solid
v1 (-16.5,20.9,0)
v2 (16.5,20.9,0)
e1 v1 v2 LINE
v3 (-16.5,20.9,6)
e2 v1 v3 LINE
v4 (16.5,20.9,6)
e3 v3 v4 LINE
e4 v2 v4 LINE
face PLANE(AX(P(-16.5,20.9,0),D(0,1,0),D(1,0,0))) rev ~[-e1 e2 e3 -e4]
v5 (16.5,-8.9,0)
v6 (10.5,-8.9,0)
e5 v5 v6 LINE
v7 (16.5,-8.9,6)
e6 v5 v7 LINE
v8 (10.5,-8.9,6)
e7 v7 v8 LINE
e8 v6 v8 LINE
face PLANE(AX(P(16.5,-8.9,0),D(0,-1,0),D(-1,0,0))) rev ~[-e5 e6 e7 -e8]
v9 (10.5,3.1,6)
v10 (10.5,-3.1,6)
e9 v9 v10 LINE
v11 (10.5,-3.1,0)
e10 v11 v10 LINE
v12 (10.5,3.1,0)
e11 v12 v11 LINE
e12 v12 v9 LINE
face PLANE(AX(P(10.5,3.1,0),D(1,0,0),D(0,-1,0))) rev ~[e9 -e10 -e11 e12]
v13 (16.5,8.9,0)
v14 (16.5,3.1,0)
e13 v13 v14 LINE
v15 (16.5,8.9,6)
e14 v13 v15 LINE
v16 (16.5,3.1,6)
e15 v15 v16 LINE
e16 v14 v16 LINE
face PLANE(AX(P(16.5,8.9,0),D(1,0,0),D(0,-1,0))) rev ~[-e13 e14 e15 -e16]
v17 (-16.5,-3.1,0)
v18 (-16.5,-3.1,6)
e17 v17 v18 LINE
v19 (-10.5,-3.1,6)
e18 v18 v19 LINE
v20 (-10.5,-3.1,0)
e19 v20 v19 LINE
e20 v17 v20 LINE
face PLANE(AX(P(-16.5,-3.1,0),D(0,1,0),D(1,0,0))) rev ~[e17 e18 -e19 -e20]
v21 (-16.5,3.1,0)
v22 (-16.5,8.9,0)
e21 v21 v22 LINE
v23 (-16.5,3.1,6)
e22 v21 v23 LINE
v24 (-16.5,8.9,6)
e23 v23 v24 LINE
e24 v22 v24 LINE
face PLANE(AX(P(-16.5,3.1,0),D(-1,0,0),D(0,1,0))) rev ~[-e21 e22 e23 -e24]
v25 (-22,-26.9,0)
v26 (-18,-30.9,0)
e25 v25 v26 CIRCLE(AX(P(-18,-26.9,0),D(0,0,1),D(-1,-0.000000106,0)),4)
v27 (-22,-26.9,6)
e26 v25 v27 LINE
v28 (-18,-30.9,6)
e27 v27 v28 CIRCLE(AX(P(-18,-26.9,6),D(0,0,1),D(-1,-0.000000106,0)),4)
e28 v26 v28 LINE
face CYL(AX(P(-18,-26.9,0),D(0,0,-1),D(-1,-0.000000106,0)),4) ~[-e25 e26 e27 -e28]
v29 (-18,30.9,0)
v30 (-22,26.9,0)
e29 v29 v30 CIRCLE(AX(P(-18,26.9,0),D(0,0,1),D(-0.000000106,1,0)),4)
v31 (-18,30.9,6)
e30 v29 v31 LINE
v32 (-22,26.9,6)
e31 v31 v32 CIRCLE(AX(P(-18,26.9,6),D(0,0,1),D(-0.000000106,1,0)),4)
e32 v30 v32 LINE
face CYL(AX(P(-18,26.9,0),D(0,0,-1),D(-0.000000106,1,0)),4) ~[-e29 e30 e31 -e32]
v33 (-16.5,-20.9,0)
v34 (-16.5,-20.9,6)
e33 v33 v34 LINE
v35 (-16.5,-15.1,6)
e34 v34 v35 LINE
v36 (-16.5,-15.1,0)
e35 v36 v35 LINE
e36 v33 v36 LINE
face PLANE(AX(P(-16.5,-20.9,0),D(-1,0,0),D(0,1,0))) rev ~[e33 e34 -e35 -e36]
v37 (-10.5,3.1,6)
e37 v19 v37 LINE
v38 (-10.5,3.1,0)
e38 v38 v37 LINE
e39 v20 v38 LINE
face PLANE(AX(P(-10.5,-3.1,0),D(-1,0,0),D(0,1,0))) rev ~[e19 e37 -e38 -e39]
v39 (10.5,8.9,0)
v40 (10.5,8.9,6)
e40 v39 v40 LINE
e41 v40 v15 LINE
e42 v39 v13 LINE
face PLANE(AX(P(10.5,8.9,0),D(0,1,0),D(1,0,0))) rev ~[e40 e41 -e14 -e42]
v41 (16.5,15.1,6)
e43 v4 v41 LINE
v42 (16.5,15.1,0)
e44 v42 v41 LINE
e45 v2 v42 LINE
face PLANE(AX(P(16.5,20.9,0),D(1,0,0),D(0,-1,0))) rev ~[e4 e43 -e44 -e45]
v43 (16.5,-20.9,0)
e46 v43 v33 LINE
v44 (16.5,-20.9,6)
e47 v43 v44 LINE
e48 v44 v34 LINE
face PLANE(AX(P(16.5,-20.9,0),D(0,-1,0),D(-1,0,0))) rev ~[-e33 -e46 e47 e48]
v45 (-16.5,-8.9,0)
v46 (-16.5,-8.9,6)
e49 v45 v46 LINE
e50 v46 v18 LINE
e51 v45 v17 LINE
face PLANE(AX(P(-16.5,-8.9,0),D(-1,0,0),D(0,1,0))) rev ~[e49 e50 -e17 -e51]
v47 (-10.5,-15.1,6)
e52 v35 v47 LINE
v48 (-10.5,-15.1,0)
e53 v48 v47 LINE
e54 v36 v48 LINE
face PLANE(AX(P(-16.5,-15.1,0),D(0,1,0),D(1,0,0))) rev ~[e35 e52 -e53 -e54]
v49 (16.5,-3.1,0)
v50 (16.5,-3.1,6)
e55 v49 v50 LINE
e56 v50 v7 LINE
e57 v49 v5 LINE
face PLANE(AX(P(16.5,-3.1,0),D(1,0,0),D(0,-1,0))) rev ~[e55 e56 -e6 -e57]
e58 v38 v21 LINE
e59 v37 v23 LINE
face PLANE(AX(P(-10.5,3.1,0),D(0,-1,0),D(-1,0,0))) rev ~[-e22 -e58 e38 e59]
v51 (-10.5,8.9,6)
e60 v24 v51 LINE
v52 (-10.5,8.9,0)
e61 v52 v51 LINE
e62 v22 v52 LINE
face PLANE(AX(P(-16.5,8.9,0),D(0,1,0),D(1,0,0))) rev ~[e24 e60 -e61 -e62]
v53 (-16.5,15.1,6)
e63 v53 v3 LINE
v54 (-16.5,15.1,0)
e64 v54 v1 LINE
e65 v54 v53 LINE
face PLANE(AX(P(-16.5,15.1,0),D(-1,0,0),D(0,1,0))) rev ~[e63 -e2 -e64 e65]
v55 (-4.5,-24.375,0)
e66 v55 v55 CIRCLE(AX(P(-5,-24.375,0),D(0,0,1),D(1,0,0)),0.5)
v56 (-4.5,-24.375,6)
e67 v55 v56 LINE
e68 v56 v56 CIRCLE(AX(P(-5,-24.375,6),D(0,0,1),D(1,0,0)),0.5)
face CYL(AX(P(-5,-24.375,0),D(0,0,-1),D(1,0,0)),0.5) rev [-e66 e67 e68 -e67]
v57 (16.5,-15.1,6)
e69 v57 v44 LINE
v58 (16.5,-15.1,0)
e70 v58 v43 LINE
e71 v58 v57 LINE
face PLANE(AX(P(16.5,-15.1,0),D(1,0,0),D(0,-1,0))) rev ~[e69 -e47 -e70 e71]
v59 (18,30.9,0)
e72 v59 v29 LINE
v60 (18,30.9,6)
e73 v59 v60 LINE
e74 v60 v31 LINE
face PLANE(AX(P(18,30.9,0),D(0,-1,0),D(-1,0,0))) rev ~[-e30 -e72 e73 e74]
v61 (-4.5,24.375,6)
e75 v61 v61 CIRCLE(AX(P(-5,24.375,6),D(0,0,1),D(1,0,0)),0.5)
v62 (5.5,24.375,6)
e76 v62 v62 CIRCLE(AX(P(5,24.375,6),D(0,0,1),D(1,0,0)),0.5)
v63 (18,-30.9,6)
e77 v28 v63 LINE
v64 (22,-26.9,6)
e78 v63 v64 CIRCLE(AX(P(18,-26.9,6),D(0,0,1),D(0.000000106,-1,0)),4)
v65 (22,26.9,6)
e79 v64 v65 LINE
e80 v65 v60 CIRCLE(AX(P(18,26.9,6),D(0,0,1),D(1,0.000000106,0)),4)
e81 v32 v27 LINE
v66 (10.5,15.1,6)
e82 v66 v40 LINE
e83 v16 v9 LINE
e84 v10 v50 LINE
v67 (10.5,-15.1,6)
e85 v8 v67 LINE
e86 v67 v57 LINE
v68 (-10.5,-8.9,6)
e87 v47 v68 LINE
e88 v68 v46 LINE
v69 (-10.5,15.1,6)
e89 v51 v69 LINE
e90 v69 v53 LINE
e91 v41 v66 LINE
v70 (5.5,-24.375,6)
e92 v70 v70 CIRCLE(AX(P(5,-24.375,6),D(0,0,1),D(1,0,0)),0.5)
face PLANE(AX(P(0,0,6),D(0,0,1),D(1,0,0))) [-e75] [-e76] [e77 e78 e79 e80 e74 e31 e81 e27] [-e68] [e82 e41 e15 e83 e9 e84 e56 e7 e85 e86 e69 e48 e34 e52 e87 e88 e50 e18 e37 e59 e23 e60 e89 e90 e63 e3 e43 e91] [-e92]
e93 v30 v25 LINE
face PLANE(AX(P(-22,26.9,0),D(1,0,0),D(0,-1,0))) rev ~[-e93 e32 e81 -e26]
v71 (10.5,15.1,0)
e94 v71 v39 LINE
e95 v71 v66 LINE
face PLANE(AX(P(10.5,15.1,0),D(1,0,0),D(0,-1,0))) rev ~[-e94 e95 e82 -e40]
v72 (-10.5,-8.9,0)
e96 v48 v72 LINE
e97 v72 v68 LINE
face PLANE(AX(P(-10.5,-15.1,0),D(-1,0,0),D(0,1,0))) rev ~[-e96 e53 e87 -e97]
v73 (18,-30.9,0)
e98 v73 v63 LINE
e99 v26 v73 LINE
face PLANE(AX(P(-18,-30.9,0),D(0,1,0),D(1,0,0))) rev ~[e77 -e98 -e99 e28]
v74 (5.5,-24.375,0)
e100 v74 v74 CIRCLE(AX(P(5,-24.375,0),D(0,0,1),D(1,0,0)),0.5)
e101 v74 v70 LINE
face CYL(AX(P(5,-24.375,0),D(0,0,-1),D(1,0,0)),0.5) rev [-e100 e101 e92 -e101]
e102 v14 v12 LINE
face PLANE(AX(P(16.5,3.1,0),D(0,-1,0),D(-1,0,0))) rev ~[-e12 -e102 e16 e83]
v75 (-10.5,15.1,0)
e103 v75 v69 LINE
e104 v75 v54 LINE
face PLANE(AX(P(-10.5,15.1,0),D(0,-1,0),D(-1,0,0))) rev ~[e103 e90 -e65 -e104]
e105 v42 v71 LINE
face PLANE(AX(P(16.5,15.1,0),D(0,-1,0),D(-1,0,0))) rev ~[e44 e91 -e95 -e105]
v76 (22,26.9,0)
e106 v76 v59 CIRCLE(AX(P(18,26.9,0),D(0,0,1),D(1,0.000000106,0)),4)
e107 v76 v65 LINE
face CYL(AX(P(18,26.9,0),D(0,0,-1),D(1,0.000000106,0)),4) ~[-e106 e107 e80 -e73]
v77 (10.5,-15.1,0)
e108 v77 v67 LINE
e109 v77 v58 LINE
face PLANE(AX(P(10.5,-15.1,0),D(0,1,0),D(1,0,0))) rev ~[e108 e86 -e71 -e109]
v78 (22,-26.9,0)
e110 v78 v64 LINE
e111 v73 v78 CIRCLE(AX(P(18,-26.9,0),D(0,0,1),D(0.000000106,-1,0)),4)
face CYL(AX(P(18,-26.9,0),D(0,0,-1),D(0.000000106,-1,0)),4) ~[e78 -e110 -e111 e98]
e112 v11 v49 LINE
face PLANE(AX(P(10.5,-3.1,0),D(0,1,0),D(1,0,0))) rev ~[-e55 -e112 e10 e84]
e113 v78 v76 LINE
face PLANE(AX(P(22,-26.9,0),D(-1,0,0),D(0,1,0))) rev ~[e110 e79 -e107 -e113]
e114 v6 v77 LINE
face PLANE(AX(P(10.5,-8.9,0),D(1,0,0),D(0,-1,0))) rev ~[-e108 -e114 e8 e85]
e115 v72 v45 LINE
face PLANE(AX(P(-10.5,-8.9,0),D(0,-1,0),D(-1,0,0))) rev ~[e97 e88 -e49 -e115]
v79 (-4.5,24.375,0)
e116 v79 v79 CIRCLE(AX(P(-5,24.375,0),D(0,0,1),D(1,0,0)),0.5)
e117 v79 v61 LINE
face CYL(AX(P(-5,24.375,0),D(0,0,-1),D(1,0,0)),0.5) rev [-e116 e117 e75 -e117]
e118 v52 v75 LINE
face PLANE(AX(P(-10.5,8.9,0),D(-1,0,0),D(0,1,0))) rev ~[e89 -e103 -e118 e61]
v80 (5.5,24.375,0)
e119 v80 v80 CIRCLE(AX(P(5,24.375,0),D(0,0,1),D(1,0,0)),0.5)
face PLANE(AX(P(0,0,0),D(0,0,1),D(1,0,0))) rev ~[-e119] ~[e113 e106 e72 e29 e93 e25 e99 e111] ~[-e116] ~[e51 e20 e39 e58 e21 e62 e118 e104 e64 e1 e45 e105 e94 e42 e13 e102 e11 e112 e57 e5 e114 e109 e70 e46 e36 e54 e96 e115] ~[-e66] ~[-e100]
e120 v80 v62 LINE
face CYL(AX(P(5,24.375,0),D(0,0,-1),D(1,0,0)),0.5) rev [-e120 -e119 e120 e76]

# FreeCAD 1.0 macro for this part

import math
import FreeCAD as App
import Part
import Sketcher


def add_polygon(sketch, points):
    """Adds a closed chain of lines whose ends are joined by coincident constraints."""
    first, n = sketch.GeometryCount, len(points)
    for a, b in zip(points, points[1:] + points[:1]):
        sketch.addGeometry(Part.LineSegment(App.Vector(*a, 0), App.Vector(*b, 0)), False)
    for i in range(n):
        sketch.addConstraint(Sketcher.Constraint("Coincident", first + i, 2, first + (i + 1) % n, 1))

doc = App.newDocument("Part")
params = doc.addObject("Spreadsheet::Sheet", "Params")
for row, (alias, value) in enumerate([
    ("sketch1_diameter", "1 mm"),
    ("sketch1_radius", "4 mm"),
    ("sketch1_width", "36 mm"),
    ("sketch1_width2", "33 mm"),
    ("sketch1_width3", "6 mm"),
    ("pad1_length", "6 mm"),
], start=1):
    params.set(f"A{row}", alias)
    params.set(f"B{row}", "=" + value)
    params.setAlias(f"B{row}", alias)

body = doc.addObject("PartDesign::Body", "Body")

sketch1 = doc.addObject("Sketcher::SketchObject", "Sketch")
body.addObject(sketch1)
sketch1.AttachmentSupport = (doc.XY_Plane, [""])
sketch1.MapMode = "FlatFace"
sketch1.addGeometry(Part.LineSegment(App.Vector(18, 30.9, 0), App.Vector(-18, 30.9, 0)), False)
sketch1.addGeometry(Part.ArcOfCircle(Part.Circle(App.Vector(-18, 26.9, 0), App.Vector(0, 0, 1), 4), math.radians(90), math.radians(180)), False)
sketch1.addGeometry(Part.LineSegment(App.Vector(-22, 26.9, 0), App.Vector(-22, -26.9, 0)), False)
sketch1.addGeometry(Part.ArcOfCircle(Part.Circle(App.Vector(-18, -26.9, 0), App.Vector(0, 0, 1), 4), math.radians(-180), math.radians(-90)), False)
sketch1.addGeometry(Part.LineSegment(App.Vector(-18, -30.9, 0), App.Vector(18, -30.9, 0)), False)
sketch1.addGeometry(Part.ArcOfCircle(Part.Circle(App.Vector(18, -26.9, 0), App.Vector(0, 0, 1), 4), math.radians(-90), math.radians(0)), False)
sketch1.addGeometry(Part.LineSegment(App.Vector(22, -26.9, 0), App.Vector(22, 26.9, 0)), False)
sketch1.addGeometry(Part.ArcOfCircle(Part.Circle(App.Vector(18, 26.9, 0), App.Vector(0, 0, 1), 4), math.radians(0), math.radians(90)), False)
sketch1.addGeometry(Part.Circle(App.Vector(-5, -24.4, 0), App.Vector(0, 0, 1), 0.5), False)
sketch1.addGeometry(Part.Circle(App.Vector(5, -24.4, 0), App.Vector(0, 0, 1), 0.5), False)
sketch1.addGeometry(Part.Circle(App.Vector(-5, 24.4, 0), App.Vector(0, 0, 1), 0.5), False)
add_polygon(sketch1, [(-16.5, 15.1), (-16.5, 20.9), (16.5, 20.9), (16.5, 15.1), (10.5, 15.1), (10.5, 8.9), (16.5, 8.9), (16.5, 3.1), (10.5, 3.1), (10.5, -3.1), (16.5, -3.1), (16.5, -8.9), (10.5, -8.9), (10.5, -15.1), (16.5, -15.1), (16.5, -20.9), (-16.5, -20.9), (-16.5, -15.1), (-10.5, -15.1), (-10.5, -8.9), (-16.5, -8.9), (-16.5, -3.1), (-10.5, -3.1), (-10.5, 3.1), (-16.5, 3.1), (-16.5, 8.9), (-10.5, 8.9), (-10.5, 15.1)])
sketch1.addGeometry(Part.Circle(App.Vector(5, 24.4, 0), App.Vector(0, 0, 1), 0.5), False)
sketch1.addConstraint([
    Sketcher.Constraint("Tangent", 0, 2, 1, 1),
    Sketcher.Constraint("Tangent", 1, 2, 2, 1),
    Sketcher.Constraint("Tangent", 2, 2, 3, 1),
    Sketcher.Constraint("Tangent", 3, 2, 4, 1),
    Sketcher.Constraint("Tangent", 4, 2, 5, 1),
    Sketcher.Constraint("Tangent", 5, 2, 6, 1),
    Sketcher.Constraint("Tangent", 6, 2, 7, 1),
    Sketcher.Constraint("Tangent", 7, 2, 0, 1),
    Sketcher.Constraint("Horizontal", 0),
    Sketcher.Constraint("Vertical", 2),
    Sketcher.Constraint("Horizontal", 4),
    Sketcher.Constraint("Vertical", 6),
    Sketcher.Constraint("Vertical", 11),
    Sketcher.Constraint("Horizontal", 12),
    Sketcher.Constraint("Vertical", 13),
    Sketcher.Constraint("Horizontal", 14),
    Sketcher.Constraint("Vertical", 15),
    Sketcher.Constraint("Horizontal", 16),
    Sketcher.Constraint("Vertical", 17),
    Sketcher.Constraint("Horizontal", 18),
    Sketcher.Constraint("Vertical", 19),
    Sketcher.Constraint("Horizontal", 20),
    Sketcher.Constraint("Vertical", 21),
    Sketcher.Constraint("Horizontal", 22),
    Sketcher.Constraint("Vertical", 23),
    Sketcher.Constraint("Horizontal", 24),
    Sketcher.Constraint("Vertical", 25),
    Sketcher.Constraint("Horizontal", 26),
    Sketcher.Constraint("Vertical", 27),
    Sketcher.Constraint("Horizontal", 28),
    Sketcher.Constraint("Vertical", 29),
    Sketcher.Constraint("Horizontal", 30),
    Sketcher.Constraint("Vertical", 31),
    Sketcher.Constraint("Horizontal", 32),
    Sketcher.Constraint("Vertical", 33),
    Sketcher.Constraint("Horizontal", 34),
    Sketcher.Constraint("Vertical", 35),
    Sketcher.Constraint("Horizontal", 36),
    Sketcher.Constraint("Vertical", 37),
    Sketcher.Constraint("Horizontal", 38),
    Sketcher.Constraint("Equal", 1, 3),
    Sketcher.Constraint("Equal", 3, 5),
    Sketcher.Constraint("Equal", 5, 7),
    Sketcher.Constraint("Equal", 8, 9),
    Sketcher.Constraint("Equal", 9, 10),
    Sketcher.Constraint("Equal", 10, 39),
    Sketcher.Constraint("Symmetric", 1, 3, 5, 3, -1, 1),
    Sketcher.Constraint("Symmetric", 9, 3, 10, 3, -1, 1),
    Sketcher.Constraint("Symmetric", 8, 3, 39, 3, -1, 1),
    Sketcher.Constraint("Symmetric", 11, 2, 25, 2, -1, 1),
    Sketcher.Constraint("Symmetric", 13, 2, 27, 2, -1, 1),
    Sketcher.Constraint("Symmetric", 15, 2, 29, 2, -1, 1),
    Sketcher.Constraint("Symmetric", 17, 2, 31, 2, -1, 1),
    Sketcher.Constraint("Symmetric", 19, 2, 33, 2, -1, 1),
    Sketcher.Constraint("Symmetric", 21, 2, 35, 2, -1, 1),
    Sketcher.Constraint("Symmetric", 23, 2, 37, 2, -1, 1),
    Sketcher.Constraint("Symmetric", 8, 3, 9, 3, -2),
    Sketcher.Constraint("Symmetric", 24, 2, 27, 2, -2),
    Sketcher.Constraint("Symmetric", 22, 2, 29, 2, -2),
    Sketcher.Constraint("Symmetric", 20, 2, 31, 2, -2),
    Sketcher.Constraint("Vertical", 13, 2, 16, 2),
    Sketcher.Constraint("Vertical", 15, 2, 18, 2),
    Sketcher.Constraint("Equal", 13, 17),
    Sketcher.Constraint("Equal", 15, 19),
    Sketcher.Constraint("Diameter", 8, 1.0),
    Sketcher.Constraint("Radius", 1, 4.0),
    Sketcher.Constraint("DistanceX", 0, 2, 0, 1, 36.0),
    Sketcher.Constraint("DistanceX", 12, 1, 12, 2, 33.0),
    Sketcher.Constraint("DistanceX", 14, 2, 14, 1, 6.0),
    Sketcher.Constraint("DistanceY", 2, 2, 2, 1, 53.8),
    Sketcher.Constraint("DistanceY", 11, 1, 11, 2, 5.8),
    Sketcher.Constraint("DistanceY", 15, 2, 15, 1, 6.2),
    Sketcher.Constraint("DistanceX", 8, 3, -1, 1, 5.0),
    Sketcher.Constraint("DistanceY", 8, 3, 10, 3, 48.75),
])
sketch1.setExpression("Constraints[92]", "Params.sketch1_diameter")
sketch1.setExpression("Constraints[93]", "Params.sketch1_radius")
sketch1.setExpression("Constraints[94]", "Params.sketch1_width")
sketch1.setExpression("Constraints[95]", "Params.sketch1_width2")
sketch1.setExpression("Constraints[96]", "Params.sketch1_width3")
pad1 = doc.addObject("PartDesign::Pad", "Pad")
body.addObject(pad1)
pad1.Profile = sketch1
pad1.setExpression("Length", "Params.pad1_length")

doc.recompute()
